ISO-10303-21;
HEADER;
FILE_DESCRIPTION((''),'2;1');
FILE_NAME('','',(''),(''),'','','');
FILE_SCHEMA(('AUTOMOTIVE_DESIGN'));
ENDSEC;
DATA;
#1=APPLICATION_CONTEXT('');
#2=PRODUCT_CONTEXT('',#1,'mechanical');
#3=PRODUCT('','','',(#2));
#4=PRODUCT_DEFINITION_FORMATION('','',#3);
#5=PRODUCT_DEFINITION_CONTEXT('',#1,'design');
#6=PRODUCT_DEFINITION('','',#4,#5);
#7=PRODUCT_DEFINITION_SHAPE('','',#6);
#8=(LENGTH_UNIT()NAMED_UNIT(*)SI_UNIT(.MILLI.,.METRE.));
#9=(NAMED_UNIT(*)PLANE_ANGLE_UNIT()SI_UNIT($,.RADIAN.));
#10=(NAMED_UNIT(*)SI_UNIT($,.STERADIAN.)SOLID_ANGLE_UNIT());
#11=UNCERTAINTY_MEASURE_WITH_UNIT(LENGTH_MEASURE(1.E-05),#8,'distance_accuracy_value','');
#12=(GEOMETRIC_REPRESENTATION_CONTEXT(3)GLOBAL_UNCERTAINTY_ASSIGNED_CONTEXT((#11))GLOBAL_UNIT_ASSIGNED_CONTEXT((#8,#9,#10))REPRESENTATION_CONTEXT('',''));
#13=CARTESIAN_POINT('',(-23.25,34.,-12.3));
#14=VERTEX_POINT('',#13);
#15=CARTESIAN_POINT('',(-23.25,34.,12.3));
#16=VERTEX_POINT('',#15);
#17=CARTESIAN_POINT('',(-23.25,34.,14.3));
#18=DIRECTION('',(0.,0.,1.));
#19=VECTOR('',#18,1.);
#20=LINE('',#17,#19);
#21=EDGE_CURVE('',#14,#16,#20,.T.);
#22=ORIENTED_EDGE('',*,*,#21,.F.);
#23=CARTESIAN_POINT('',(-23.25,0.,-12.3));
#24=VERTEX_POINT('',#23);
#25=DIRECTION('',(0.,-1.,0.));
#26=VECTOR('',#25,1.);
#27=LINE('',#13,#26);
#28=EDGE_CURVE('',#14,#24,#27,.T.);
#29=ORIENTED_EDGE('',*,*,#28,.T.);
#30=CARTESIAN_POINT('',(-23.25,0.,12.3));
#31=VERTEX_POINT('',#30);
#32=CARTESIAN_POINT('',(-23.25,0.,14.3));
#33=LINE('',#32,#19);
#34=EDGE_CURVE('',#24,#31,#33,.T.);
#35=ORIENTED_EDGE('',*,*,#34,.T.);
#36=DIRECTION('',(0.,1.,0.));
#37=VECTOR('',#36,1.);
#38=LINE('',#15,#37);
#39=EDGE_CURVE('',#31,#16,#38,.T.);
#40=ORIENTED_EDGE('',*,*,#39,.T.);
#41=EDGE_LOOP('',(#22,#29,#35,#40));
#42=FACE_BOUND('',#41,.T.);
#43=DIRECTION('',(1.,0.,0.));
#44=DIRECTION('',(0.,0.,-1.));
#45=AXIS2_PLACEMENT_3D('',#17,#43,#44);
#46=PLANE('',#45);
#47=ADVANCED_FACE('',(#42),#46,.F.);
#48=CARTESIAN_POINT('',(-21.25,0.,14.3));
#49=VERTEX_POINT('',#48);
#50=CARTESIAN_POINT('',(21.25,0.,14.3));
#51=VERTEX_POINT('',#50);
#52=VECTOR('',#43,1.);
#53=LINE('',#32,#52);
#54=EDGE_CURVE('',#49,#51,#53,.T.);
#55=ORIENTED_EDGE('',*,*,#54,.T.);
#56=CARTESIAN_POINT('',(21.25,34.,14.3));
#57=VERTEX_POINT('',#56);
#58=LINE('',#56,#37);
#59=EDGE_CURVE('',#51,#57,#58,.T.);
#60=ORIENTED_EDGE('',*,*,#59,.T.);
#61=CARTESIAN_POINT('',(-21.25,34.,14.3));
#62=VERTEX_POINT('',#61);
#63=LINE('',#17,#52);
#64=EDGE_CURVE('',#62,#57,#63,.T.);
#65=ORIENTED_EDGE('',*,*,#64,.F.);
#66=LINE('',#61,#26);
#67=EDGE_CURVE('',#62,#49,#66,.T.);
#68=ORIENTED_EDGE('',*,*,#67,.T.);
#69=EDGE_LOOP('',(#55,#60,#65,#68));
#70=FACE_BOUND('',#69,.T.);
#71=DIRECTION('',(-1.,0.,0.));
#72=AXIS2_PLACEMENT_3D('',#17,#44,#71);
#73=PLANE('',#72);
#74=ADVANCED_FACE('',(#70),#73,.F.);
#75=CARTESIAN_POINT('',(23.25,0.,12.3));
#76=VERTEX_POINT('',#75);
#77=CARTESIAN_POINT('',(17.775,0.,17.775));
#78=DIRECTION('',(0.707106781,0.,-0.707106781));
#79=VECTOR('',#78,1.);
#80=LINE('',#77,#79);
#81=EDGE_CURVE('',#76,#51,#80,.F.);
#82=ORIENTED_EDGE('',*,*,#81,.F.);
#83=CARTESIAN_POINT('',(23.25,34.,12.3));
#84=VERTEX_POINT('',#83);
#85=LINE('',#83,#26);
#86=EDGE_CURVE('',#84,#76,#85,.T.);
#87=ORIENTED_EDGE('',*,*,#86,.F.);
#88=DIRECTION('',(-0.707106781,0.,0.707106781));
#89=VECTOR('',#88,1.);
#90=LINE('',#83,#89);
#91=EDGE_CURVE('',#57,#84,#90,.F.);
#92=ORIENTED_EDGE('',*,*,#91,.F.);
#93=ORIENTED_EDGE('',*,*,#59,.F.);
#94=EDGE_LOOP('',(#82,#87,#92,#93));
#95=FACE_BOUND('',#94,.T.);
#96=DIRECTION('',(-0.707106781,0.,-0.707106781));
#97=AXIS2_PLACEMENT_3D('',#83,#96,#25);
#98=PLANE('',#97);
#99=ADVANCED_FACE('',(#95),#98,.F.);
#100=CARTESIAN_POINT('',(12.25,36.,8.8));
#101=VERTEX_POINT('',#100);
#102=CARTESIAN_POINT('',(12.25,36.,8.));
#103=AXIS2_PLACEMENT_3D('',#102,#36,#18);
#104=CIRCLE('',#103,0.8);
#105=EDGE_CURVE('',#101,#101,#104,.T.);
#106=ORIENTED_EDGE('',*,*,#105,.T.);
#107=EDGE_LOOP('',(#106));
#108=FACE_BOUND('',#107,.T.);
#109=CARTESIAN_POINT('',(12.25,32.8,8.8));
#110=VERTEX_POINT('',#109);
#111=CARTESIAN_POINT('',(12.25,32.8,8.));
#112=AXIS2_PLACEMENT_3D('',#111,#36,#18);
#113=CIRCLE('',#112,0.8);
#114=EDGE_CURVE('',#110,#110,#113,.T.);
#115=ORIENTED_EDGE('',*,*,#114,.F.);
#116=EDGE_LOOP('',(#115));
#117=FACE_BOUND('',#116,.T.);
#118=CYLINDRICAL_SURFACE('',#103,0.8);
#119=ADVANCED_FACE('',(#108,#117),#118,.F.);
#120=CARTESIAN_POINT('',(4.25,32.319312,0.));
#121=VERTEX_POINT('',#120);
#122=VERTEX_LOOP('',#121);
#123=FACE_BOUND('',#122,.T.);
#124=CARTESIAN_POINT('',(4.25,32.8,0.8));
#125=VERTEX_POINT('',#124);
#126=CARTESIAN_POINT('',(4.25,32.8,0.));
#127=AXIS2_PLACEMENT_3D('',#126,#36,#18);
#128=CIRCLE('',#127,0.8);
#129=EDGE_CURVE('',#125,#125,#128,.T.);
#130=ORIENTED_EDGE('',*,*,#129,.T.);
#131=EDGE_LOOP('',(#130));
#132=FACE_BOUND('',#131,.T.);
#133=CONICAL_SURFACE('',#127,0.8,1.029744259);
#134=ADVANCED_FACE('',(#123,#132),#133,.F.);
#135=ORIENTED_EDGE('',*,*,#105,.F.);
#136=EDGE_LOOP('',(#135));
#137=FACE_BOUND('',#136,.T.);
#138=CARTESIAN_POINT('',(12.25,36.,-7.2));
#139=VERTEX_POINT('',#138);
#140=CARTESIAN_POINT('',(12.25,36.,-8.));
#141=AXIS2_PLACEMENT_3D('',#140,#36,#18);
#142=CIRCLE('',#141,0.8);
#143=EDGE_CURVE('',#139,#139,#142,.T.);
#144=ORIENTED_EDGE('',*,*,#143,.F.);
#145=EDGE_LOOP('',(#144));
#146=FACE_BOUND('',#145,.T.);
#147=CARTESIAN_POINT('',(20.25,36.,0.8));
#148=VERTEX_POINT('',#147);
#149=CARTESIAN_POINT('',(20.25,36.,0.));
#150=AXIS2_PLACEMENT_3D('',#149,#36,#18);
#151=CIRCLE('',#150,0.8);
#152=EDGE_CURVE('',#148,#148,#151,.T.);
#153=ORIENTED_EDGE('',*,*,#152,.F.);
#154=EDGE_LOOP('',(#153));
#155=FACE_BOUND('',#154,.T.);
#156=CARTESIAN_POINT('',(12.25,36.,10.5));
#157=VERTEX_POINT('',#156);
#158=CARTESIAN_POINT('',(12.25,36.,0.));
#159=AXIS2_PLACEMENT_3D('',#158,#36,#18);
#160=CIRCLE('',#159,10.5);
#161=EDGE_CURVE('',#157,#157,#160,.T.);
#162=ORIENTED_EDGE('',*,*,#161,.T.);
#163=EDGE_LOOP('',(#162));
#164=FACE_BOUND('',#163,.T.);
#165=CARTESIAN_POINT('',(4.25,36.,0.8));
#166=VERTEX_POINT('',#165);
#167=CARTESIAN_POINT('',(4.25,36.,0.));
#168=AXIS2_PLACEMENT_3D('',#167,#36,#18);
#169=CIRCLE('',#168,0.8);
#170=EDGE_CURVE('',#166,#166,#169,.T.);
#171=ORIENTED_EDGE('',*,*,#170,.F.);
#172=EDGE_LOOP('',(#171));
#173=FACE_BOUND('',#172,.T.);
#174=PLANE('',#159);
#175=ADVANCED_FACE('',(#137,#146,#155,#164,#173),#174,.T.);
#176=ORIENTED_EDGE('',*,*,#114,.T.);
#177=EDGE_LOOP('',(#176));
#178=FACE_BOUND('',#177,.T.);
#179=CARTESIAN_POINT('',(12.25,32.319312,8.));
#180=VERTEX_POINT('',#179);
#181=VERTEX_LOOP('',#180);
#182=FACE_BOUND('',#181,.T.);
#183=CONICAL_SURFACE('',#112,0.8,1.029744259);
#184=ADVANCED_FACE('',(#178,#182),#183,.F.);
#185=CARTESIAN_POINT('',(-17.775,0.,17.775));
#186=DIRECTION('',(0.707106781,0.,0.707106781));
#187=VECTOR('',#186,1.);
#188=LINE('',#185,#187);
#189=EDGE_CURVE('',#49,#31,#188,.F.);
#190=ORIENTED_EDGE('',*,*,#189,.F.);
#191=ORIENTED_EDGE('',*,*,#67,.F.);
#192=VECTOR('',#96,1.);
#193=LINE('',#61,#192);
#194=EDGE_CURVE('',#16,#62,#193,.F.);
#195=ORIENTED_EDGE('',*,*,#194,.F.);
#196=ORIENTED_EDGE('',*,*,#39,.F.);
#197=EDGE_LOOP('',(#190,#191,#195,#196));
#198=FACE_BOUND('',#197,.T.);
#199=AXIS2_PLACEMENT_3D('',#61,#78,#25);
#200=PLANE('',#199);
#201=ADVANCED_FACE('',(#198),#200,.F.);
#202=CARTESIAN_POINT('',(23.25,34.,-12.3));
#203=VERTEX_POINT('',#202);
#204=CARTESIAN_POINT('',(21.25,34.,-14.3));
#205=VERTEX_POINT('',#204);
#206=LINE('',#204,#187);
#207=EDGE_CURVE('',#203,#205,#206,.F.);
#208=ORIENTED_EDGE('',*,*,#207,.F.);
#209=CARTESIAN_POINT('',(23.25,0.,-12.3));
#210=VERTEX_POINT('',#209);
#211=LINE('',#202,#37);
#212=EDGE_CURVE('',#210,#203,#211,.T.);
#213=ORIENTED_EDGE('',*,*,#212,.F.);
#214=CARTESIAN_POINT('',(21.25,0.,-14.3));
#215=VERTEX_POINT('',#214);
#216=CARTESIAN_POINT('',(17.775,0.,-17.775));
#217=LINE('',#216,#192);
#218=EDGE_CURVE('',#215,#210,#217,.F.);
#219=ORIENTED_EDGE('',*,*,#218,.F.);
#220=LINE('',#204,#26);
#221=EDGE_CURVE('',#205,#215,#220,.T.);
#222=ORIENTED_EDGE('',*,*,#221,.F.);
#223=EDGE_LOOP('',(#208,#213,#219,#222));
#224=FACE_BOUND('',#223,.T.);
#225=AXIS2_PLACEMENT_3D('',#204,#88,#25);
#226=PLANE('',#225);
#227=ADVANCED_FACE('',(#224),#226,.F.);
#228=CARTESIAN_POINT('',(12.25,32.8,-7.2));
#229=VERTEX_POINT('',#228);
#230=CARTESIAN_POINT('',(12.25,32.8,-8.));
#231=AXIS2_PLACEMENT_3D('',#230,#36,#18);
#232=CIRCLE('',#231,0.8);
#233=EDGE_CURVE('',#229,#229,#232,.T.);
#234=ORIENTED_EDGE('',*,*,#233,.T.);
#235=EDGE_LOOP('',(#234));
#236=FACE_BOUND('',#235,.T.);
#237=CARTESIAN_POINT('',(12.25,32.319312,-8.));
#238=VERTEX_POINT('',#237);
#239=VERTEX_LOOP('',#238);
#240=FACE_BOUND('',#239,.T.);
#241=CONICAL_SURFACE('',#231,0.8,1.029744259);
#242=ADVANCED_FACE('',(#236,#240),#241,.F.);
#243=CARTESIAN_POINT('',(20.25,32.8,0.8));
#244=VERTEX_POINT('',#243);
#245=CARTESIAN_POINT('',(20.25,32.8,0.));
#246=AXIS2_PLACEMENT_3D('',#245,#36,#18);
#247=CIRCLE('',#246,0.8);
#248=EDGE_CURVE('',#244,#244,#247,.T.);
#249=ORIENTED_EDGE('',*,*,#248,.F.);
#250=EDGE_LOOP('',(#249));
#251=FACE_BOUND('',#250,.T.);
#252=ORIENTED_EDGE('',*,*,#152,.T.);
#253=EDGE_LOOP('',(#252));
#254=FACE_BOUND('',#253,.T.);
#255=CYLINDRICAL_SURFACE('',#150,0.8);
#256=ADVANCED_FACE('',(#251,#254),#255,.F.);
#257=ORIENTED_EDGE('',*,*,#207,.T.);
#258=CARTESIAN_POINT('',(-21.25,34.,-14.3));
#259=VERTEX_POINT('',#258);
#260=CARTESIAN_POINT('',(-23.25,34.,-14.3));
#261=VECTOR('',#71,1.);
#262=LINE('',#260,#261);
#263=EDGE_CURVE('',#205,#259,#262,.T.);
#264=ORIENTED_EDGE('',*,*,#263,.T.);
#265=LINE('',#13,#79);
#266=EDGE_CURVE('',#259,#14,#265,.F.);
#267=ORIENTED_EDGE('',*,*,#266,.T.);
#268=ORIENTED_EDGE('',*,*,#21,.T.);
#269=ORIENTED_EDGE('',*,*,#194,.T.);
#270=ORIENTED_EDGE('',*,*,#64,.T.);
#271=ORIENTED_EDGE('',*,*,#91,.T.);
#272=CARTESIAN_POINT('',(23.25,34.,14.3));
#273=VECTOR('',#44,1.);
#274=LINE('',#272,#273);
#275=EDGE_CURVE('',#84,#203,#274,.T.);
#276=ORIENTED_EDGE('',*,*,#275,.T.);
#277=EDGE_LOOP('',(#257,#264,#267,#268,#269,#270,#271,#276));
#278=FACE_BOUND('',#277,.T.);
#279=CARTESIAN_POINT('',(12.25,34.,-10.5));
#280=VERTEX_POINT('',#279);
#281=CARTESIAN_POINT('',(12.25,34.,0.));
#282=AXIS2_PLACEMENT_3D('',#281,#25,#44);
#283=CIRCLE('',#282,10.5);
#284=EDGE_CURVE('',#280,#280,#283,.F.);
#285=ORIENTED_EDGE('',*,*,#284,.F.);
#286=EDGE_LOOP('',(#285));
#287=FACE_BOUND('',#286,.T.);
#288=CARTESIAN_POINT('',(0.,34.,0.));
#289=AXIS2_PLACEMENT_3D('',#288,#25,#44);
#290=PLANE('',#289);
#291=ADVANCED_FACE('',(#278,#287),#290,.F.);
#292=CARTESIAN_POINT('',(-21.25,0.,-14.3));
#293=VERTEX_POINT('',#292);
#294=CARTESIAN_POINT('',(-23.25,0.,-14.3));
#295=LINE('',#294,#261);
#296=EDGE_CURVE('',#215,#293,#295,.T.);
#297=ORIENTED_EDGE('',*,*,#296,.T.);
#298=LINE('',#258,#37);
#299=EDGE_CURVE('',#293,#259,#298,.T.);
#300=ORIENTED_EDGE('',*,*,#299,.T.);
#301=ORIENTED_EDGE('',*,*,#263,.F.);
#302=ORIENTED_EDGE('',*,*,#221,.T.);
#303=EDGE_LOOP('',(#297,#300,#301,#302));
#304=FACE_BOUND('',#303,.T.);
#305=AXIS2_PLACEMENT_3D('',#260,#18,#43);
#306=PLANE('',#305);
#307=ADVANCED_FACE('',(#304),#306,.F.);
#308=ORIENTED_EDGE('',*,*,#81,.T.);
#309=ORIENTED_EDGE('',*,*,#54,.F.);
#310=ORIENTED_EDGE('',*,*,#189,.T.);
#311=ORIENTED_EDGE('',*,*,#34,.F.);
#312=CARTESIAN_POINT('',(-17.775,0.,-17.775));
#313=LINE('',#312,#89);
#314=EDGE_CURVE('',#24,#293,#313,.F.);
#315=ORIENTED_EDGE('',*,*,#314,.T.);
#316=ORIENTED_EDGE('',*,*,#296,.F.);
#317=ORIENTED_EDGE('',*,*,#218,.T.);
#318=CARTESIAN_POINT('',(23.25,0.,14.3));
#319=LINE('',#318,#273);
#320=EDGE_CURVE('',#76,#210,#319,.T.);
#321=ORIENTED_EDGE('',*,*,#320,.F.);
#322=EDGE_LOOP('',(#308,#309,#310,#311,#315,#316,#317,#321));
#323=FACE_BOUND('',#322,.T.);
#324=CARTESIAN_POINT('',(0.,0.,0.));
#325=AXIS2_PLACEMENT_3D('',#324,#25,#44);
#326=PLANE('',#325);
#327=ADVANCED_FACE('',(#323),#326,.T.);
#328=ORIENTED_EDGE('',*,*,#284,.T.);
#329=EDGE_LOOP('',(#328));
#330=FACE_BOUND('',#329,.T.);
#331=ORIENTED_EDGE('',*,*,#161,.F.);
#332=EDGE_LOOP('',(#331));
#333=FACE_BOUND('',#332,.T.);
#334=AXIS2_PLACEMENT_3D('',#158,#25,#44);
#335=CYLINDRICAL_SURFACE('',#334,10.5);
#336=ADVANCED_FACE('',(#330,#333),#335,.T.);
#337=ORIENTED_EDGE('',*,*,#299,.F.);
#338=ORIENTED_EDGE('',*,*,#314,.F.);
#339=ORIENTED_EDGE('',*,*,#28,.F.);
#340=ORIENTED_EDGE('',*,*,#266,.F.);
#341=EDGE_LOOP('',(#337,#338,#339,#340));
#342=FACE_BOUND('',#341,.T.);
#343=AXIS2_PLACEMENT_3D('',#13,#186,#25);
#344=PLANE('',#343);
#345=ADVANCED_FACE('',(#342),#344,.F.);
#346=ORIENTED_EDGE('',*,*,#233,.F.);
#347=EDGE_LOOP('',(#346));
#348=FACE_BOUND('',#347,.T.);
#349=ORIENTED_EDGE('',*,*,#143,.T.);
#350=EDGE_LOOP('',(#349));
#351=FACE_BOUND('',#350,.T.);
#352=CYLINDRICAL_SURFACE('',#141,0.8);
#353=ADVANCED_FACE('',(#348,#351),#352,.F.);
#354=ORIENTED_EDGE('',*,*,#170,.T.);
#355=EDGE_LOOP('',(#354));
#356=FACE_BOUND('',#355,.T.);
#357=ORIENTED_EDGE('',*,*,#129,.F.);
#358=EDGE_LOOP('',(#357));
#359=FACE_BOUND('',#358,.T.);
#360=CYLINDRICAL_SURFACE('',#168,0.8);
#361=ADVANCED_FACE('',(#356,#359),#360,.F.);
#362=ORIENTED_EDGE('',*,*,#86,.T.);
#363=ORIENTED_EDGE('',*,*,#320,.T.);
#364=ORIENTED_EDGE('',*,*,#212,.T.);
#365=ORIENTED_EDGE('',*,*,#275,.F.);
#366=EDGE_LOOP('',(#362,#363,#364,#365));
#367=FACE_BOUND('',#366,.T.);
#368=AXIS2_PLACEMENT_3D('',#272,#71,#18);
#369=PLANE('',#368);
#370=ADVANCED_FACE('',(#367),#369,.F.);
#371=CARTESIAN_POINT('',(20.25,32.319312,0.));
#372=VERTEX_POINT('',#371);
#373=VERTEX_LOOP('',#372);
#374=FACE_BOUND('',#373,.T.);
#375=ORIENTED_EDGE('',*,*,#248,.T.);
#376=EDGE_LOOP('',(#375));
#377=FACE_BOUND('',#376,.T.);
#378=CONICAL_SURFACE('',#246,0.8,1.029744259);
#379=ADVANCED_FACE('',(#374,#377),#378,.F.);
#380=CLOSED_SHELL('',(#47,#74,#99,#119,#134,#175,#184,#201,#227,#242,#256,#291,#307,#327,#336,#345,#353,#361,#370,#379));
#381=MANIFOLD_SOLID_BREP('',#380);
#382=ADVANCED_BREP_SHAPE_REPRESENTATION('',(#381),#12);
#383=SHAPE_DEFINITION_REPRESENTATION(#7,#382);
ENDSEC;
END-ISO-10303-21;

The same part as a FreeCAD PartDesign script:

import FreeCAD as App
import Part
import Sketcher

V = App.Vector


def edges_at(feature, points):
    """Names of the edges that pass closest to the given points."""
    edges = feature.Shape.Edges
    near = lambda p: min(range(len(edges)), key=lambda i: edges[i].distToShape(Part.Vertex(*p))[0])
    return sorted({f"Edge{near(p) + 1}" for p in points})


def add_polygon(sketch, points):
    """Adds a closed chain of lines whose ends are joined by coincident constraints."""
    first, n = sketch.GeometryCount, len(points)
    for a, b in zip(points, points[1:] + points[:1]):
        sketch.addGeometry(Part.LineSegment(App.Vector(*a, 0), App.Vector(*b, 0)), False)
    for i in range(n):
        sketch.addConstraint(Sketcher.Constraint("Coincident", first + i, 2, first + (i + 1) % n, 1))

doc = App.newDocument("Part")
body = doc.addObject("PartDesign::Body", "Body")

sketch1 = doc.addObject("Sketcher::SketchObject", "Sketch")
body.addObject(sketch1)
sketch1.AttachmentSupport = (doc.XZ_Plane, [""])
sketch1.MapMode = "FlatFace"
add_polygon(sketch1, [(-23, -14), (-23, 14), (23, 14), (23, -14)])
sketch1.addConstraint([
    Sketcher.Constraint("Vertical", 0),
    Sketcher.Constraint("Horizontal", 1),
    Sketcher.Constraint("Vertical", 2),
    Sketcher.Constraint("Horizontal", 3),
    Sketcher.Constraint("Symmetric", 0, 2, 2, 2, -1, 1),
    Sketcher.Constraint("DistanceX", 1, 1, 1, 2, 46.5),
    Sketcher.Constraint("DistanceY", 0, 1, 0, 2, 28.6),
])
pad1 = doc.addObject("PartDesign::Pad", "Pad")
body.addObject(pad1)
pad1.Profile = sketch1
pad1.Length = 34
pad1.Reversed = True
doc.recompute()

chamfer = doc.addObject("PartDesign::Chamfer", "Chamfer")
body.addObject(chamfer)
chamfer.Base = (pad1, edges_at(pad1, [
    (23.25, 17, 14.3),
    (-23.25, 17, 14.3),
    (-23.25, 17, -14.3),
    (23.25, 17, -14.3),
]))
chamfer.Size = 2

sketch2 = doc.addObject("Sketcher::SketchObject", "Sketch001")
body.addObject(sketch2)
sketch2.AttachmentSupport = (doc.XZ_Plane, [""])
sketch2.MapMode = "FlatFace"
sketch2.AttachmentOffset = App.Placement(V(0, 0, -34), App.Rotation())
sketch2.addGeometry(Part.Circle(V(12, 0, 0), V(0, 0, 1), 10), False)
sketch2.addConstraint([
    Sketcher.Constraint("PointOnObject", 0, 3, -1),
    Sketcher.Constraint("Diameter", 0, 21.0),
    Sketcher.Constraint("DistanceX", -1, 1, 0, 3, 12.25),
])
pad2 = doc.addObject("PartDesign::Pad", "Pad001")
body.addObject(pad2)
pad2.Profile = sketch2
pad2.Length = 2
pad2.Reversed = True

sketch3 = doc.addObject("Sketcher::SketchObject", "Sketch002")
body.addObject(sketch3)
sketch3.AttachmentSupport = (doc.XZ_Plane, [""])
sketch3.MapMode = "FlatFace"
sketch3.AttachmentOffset = App.Placement(V(0, 0, -36), App.Rotation())
sketch3.addGeometry([
    Part.Circle(V(12.2, -8, 0), V(0, 0, 1), 0.8),
    Part.Circle(V(20.2, 0, 0), V(0, 0, 1), 0.8),
    Part.Circle(V(12.2, 8, 0), V(0, 0, 1), 0.8),
    Part.Circle(V(4.2, 0, 0), V(0, 0, 1), 0.8),
], False)
sketch3.addConstraint([
    Sketcher.Constraint("Equal", 0, 1),
    Sketcher.Constraint("Equal", 1, 2),
    Sketcher.Constraint("Equal", 2, 3),
    Sketcher.Constraint("Symmetric", 0, 3, 2, 3, -1),
    Sketcher.Constraint("PointOnObject", 1, 3, -1),
    Sketcher.Constraint("PointOnObject", 3, 3, -1),
    Sketcher.Constraint("Diameter", 0, 1.6),
    Sketcher.Constraint("DistanceY", 0, 3, -1, 1, 8.0),
    Sketcher.Constraint("DistanceX", 0, 3, 1, 3, 8.0),
    Sketcher.Constraint("DistanceX", 3, 3, 0, 3, 8.0),
    Sketcher.Constraint("DistanceX", -1, 1, 0, 3, 12.25),
])
doc.recompute()
hole = doc.addObject("PartDesign::Hole", "Hole")
body.addObject(hole)
hole.Profile = sketch3
hole.ThreadType = "None"
hole.Diameter = 1.6
hole.DepthType = "Dimension"
hole.Depth = 3.2
hole.DrillPoint = "Angled"
hole.DrillPointAngle = 118
hole.Reversed = True

doc.recompute()
